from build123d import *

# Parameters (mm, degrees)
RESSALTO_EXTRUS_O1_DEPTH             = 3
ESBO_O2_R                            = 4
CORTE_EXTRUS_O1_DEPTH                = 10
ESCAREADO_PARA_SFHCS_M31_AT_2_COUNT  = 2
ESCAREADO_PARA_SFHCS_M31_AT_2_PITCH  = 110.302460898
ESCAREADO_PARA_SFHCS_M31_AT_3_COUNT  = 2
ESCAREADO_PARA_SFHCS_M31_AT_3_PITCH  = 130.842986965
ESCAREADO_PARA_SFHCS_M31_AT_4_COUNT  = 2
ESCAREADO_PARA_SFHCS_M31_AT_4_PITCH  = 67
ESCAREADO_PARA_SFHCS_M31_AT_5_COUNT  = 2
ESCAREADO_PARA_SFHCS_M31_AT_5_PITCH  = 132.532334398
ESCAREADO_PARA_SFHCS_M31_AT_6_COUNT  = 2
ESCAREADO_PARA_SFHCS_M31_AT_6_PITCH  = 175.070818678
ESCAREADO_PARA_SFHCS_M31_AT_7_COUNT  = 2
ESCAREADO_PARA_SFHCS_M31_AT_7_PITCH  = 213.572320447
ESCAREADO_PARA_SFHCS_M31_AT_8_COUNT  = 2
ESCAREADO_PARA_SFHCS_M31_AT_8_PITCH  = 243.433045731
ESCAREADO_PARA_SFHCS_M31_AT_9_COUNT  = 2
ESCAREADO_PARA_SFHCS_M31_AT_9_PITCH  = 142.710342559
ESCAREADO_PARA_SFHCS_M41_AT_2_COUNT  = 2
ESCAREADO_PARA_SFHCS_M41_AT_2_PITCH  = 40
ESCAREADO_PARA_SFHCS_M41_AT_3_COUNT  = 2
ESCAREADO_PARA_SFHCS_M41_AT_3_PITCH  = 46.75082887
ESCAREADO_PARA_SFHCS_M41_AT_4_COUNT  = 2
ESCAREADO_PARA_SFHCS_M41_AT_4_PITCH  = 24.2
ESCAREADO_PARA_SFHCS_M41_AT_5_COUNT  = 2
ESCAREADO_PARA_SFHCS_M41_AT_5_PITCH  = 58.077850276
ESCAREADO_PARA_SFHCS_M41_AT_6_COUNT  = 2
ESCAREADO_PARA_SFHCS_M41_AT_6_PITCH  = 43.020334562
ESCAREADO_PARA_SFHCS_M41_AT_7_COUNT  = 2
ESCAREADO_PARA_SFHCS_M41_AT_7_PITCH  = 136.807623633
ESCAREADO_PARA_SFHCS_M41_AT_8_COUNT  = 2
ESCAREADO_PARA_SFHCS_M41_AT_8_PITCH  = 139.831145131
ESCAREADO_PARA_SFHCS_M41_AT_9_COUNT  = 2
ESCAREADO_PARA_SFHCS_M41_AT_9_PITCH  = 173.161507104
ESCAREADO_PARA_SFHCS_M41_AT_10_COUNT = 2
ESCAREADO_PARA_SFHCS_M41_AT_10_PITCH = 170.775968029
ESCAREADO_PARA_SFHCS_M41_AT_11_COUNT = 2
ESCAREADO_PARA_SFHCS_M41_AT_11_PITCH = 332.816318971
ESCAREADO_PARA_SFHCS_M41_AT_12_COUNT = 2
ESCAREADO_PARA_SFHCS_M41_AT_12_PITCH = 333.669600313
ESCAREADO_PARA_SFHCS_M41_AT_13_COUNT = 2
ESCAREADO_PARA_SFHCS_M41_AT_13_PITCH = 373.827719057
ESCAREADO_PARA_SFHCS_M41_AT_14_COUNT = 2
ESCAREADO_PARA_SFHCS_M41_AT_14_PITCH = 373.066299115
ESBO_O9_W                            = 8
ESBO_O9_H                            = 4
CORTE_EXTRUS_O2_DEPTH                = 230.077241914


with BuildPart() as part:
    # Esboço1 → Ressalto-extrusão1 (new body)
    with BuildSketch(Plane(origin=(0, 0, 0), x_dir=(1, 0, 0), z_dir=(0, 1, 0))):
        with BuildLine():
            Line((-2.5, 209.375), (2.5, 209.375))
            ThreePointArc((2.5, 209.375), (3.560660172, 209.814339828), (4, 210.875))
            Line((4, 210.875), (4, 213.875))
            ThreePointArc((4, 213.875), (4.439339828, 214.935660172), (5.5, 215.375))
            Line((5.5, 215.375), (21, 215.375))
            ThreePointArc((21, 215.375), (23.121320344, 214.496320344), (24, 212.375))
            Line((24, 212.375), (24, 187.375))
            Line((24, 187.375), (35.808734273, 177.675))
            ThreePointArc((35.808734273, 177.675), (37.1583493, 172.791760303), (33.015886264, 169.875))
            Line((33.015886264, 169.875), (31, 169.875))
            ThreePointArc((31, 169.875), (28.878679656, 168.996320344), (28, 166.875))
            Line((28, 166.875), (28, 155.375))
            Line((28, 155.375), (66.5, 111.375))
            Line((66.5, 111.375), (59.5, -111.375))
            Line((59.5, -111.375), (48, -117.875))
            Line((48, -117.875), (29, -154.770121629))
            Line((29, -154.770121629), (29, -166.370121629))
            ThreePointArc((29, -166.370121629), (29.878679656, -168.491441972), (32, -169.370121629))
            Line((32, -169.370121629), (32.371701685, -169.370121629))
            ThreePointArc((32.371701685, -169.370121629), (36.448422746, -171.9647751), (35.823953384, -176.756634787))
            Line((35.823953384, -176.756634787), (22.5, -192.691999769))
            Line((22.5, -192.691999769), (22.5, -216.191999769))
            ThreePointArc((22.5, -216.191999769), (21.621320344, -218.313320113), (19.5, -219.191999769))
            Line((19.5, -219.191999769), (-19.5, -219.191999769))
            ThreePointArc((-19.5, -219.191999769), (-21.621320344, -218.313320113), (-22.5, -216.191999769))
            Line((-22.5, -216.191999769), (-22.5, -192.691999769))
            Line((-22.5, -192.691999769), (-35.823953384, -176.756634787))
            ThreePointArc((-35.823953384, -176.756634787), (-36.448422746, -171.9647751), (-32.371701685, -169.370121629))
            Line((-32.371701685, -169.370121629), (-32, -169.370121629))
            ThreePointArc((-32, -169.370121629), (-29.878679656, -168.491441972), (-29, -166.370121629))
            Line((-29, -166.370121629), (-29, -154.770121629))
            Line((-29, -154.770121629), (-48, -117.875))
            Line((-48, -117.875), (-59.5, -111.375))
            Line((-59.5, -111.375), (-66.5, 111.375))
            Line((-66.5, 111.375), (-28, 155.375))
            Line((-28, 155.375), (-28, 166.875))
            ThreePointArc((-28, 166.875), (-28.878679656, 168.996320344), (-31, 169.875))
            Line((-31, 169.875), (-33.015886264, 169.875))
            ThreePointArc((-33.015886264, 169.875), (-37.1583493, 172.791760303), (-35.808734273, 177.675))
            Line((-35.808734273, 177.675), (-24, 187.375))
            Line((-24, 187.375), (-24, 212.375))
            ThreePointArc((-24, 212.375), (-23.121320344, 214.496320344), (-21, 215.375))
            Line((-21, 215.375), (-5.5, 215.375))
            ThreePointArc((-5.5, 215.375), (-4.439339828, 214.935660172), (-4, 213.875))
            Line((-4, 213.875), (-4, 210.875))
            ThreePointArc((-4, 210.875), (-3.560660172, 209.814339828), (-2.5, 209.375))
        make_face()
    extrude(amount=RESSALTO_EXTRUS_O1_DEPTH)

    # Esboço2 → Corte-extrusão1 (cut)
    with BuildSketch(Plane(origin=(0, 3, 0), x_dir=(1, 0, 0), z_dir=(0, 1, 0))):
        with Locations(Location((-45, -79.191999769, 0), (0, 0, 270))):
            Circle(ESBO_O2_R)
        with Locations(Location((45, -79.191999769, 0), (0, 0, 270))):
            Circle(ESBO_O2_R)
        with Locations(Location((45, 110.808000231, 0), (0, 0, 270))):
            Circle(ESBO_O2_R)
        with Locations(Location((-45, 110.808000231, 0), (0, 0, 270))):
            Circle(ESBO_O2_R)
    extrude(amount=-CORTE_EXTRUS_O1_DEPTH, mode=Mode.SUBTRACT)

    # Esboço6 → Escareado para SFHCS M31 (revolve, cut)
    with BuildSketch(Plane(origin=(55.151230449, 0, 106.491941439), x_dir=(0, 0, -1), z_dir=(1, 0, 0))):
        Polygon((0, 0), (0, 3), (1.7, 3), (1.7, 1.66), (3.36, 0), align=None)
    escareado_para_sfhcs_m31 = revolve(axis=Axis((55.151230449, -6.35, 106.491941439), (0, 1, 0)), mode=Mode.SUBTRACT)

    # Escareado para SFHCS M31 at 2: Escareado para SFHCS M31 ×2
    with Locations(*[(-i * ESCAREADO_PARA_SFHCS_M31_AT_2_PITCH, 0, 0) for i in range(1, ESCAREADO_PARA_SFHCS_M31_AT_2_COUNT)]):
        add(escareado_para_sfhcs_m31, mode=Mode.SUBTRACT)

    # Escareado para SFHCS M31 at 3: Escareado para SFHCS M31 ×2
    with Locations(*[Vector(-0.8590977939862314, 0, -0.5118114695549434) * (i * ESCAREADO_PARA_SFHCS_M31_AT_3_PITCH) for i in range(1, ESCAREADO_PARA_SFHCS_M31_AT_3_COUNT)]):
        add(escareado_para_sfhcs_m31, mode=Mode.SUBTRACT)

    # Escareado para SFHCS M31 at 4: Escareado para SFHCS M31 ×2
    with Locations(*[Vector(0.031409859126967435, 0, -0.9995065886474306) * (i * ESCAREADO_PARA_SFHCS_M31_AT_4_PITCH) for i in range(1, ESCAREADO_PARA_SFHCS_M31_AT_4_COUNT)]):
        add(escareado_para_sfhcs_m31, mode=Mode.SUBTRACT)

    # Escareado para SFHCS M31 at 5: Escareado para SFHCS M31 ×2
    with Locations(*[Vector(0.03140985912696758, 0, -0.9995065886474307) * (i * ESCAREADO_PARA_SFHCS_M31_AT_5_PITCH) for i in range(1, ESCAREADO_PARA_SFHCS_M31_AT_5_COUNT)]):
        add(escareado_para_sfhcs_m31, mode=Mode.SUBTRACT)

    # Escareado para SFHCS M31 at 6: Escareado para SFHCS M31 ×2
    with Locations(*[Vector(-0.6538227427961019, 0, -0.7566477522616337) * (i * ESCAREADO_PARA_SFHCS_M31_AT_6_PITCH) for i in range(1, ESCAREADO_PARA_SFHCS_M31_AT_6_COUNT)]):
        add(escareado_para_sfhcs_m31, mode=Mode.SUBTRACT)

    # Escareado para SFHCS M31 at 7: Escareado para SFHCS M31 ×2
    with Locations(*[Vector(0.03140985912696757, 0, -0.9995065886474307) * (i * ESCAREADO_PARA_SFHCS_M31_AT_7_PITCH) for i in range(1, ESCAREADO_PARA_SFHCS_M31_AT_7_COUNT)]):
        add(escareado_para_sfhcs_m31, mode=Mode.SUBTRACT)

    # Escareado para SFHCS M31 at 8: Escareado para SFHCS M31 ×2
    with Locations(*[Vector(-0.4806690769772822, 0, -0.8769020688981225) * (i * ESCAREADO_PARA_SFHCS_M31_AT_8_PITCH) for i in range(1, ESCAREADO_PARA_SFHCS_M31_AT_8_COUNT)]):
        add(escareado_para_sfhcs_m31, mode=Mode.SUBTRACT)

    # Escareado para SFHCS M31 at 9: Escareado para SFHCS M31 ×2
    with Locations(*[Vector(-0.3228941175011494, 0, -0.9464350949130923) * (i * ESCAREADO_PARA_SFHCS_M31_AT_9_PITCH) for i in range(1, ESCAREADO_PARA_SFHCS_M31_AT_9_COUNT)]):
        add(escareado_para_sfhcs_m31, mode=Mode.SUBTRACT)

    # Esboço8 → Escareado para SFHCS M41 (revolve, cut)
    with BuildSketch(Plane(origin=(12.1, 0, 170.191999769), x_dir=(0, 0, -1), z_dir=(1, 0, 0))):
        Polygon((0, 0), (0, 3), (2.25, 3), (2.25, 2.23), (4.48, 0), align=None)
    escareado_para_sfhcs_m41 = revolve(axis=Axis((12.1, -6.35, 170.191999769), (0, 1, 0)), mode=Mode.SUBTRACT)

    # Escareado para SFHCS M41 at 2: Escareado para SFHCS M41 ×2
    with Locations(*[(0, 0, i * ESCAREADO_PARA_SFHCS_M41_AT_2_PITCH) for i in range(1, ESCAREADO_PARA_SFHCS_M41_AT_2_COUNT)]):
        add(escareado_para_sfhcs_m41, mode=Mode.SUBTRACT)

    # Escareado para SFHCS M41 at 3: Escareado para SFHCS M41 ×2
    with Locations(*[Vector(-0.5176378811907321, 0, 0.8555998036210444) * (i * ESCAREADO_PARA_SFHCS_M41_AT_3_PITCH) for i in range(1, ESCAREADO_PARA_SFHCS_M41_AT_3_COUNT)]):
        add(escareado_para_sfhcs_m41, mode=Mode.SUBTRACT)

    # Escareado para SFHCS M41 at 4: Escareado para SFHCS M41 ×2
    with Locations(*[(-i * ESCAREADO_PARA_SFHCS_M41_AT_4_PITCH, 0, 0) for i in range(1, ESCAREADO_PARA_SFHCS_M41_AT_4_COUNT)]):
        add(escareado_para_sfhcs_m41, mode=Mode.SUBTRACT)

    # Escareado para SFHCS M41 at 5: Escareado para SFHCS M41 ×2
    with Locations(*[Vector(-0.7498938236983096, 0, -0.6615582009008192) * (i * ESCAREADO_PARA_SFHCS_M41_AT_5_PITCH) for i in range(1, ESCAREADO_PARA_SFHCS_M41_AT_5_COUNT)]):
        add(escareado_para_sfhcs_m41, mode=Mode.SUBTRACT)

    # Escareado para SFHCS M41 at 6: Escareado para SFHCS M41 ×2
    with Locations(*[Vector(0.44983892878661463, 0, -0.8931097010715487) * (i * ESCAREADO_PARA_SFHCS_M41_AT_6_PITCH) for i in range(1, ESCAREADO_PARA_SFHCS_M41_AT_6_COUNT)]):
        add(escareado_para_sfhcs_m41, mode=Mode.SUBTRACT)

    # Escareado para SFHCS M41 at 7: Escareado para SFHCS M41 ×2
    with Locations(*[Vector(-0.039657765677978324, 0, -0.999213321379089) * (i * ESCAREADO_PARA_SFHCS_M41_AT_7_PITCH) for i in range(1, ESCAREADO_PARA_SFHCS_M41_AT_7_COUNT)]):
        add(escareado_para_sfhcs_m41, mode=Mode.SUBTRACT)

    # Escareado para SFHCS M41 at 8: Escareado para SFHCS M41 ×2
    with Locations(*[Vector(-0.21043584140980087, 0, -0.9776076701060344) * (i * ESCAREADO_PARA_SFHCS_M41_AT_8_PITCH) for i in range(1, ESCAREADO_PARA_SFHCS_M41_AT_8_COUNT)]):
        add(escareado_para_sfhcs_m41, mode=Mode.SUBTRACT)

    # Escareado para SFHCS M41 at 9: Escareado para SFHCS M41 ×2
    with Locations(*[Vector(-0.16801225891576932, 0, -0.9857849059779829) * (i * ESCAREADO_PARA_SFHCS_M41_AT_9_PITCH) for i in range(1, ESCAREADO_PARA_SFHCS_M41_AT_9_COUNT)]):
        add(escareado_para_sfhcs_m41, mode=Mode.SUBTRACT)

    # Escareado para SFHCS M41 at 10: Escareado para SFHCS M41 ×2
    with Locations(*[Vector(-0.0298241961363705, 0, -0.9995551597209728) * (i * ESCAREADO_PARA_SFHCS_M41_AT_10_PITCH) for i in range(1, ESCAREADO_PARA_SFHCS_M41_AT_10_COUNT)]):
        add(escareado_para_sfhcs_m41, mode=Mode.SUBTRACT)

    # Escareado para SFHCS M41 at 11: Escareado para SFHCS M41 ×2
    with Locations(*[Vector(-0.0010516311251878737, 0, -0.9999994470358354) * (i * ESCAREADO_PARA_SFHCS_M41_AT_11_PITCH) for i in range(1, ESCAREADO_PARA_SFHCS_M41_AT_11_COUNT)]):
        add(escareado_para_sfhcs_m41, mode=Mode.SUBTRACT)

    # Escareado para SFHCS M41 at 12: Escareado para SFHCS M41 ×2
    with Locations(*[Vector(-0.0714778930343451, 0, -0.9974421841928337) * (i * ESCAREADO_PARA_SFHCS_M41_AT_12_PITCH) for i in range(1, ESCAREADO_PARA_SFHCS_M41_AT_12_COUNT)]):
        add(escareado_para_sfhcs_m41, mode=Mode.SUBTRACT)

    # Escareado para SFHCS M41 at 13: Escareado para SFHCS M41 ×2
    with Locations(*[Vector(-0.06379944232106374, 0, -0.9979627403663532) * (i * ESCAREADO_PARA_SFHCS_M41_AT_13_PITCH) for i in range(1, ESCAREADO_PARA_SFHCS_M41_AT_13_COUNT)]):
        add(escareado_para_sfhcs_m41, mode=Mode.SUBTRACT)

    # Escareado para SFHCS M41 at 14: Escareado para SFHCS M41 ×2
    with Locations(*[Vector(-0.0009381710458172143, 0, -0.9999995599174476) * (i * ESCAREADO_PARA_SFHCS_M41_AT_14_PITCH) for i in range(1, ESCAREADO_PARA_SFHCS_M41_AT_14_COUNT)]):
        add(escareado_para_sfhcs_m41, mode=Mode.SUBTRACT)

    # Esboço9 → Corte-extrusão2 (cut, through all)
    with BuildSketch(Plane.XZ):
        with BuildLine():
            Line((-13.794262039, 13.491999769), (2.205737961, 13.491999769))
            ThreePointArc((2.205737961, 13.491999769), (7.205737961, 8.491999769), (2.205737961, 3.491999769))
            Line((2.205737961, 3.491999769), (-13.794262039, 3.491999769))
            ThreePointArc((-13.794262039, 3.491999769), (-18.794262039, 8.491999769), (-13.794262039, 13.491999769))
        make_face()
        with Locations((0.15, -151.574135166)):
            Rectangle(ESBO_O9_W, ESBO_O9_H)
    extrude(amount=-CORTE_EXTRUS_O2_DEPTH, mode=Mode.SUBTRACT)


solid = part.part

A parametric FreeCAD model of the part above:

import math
import FreeCAD as App
import Part
import Sketcher

V = App.Vector
Q = App.Units.Quantity

doc = App.newDocument("Part")
body = doc.addObject("PartDesign::Body", "Body")

sketch1 = doc.addObject("Sketcher::SketchObject", "Sketch")
body.addObject(sketch1)
sketch1.AttachmentSupport = (doc.XZ_Plane, [""])
sketch1.MapMode = "FlatFace"
sketch1.addGeometry([
    Part.LineSegment(V(2.5, -209.38, 0), V(-2.5, -209.38, 0)),
    Part.ArcOfCircle(Part.Circle(V(-2.5, -210.87, 0), V(0, 0, 1), 1.5), math.radians(90), math.radians(180)),
    Part.LineSegment(V(-4, -210.88, 0), V(-4, -213.88, 0)),
    Part.ArcOfCircle(Part.Circle(V(-5.5, -213.88, 0), V(0, 0, 1), 1.5), math.radians(-90), math.radians(0)),
    Part.LineSegment(V(-5.5, -215.38, 0), V(-21, -215.38, 0)),
    Part.ArcOfCircle(Part.Circle(V(-21, -212.38, 0), V(0, 0, 1), 3), math.radians(180), math.radians(270)),
    Part.LineSegment(V(-24, -212.38, 0), V(-24, -187.38, 0)),
    Part.LineSegment(V(-24, -187.38, 0), V(-35.81, -177.68, 0)),
    Part.ArcOfCircle(Part.Circle(V(-33.02, -174.28, 0), V(0, 0, 1), 4.4), math.radians(90), math.radians(231)),
    Part.LineSegment(V(-33.02, -169.88, 0), V(-31, -169.88, 0)),
    Part.ArcOfCircle(Part.Circle(V(-31, -166.88, 0), V(0, 0, 1), 3), math.radians(-90), math.radians(0)),
    Part.LineSegment(V(-28, -166.88, 0), V(-28, -155.38, 0)),
    Part.LineSegment(V(-28, -155.38, 0), V(-66.5, -111.38, 0)),
    Part.LineSegment(V(-66.5, -111.38, 0), V(-59.5, 111.38, 0)),
    Part.LineSegment(V(-59.5, 111.38, 0), V(-48, 117.88, 0)),
    Part.LineSegment(V(-48, 117.88, 0), V(-29, 154.77, 0)),
    Part.LineSegment(V(-29, 154.77, 0), V(-29, 166.37, 0)),
    Part.ArcOfCircle(Part.Circle(V(-32, 166.37, 0), V(0, 0, 1), 3), math.radians(0), math.radians(90)),
    Part.LineSegment(V(-32, 169.37, 0), V(-32.37, 169.37, 0)),
    Part.ArcOfCircle(Part.Circle(V(-32.37, 173.87, 0), V(0, 0, 1), 4.5), math.radians(140), math.radians(270)),
    Part.LineSegment(V(-35.82, 176.76, 0), V(-22.5, 192.69, 0)),
    Part.LineSegment(V(-22.5, 192.69, 0), V(-22.5, 216.19, 0)),
    Part.ArcOfCircle(Part.Circle(V(-19.5, 216.19, 0), V(0, 0, 1), 3), math.radians(90), math.radians(180)),
    Part.LineSegment(V(-19.5, 219.19, 0), V(19.5, 219.19, 0)),
    Part.ArcOfCircle(Part.Circle(V(19.5, 216.19, 0), V(0, 0, 1), 3), math.radians(0), math.radians(90)),
    Part.LineSegment(V(22.5, 216.19, 0), V(22.5, 192.69, 0)),
    Part.LineSegment(V(22.5, 192.69, 0), V(35.82, 176.76, 0)),
    Part.ArcOfCircle(Part.Circle(V(32.37, 173.87, 0), V(0, 0, 1), 4.5), math.radians(-90), math.radians(40)),
    Part.LineSegment(V(32.37, 169.37, 0), V(32, 169.37, 0)),
    Part.ArcOfCircle(Part.Circle(V(32, 166.37, 0), V(0, 0, 1), 3), math.radians(90), math.radians(180)),
    Part.LineSegment(V(29, 166.37, 0), V(29, 154.77, 0)),
    Part.LineSegment(V(29, 154.77, 0), V(48, 117.88, 0)),
    Part.LineSegment(V(48, 117.88, 0), V(59.5, 111.38, 0)),
    Part.LineSegment(V(59.5, 111.38, 0), V(66.5, -111.38, 0)),
    Part.LineSegment(V(66.5, -111.38, 0), V(28, -155.38, 0)),
    Part.LineSegment(V(28, -155.38, 0), V(28, -166.88, 0)),
    Part.ArcOfCircle(Part.Circle(V(31, -166.88, 0), V(0, 0, 1), 3), math.radians(180), math.radians(270)),
    Part.LineSegment(V(31, -169.88, 0), V(33.02, -169.88, 0)),
    Part.ArcOfCircle(Part.Circle(V(33.02, -174.28, 0), V(0, 0, 1), 4.4), math.radians(-51), math.radians(90)),
    Part.LineSegment(V(35.81, -177.68, 0), V(24, -187.38, 0)),
    Part.LineSegment(V(24, -187.38, 0), V(24, -212.38, 0)),
    Part.ArcOfCircle(Part.Circle(V(21, -212.38, 0), V(0, 0, 1), 3), math.radians(-90), math.radians(0)),
    Part.LineSegment(V(21, -215.38, 0), V(5.5, -215.38, 0)),
    Part.ArcOfCircle(Part.Circle(V(5.5, -213.88, 0), V(0, 0, 1), 1.5), math.radians(180), math.radians(270)),
    Part.LineSegment(V(4, -213.88, 0), V(4, -210.88, 0)),
    Part.ArcOfCircle(Part.Circle(V(2.5, -210.87, 0), V(0, 0, 1), 1.5), math.radians(0), math.radians(90)),
], False)
sketch1.addConstraint([
    Sketcher.Constraint("Tangent", 0, 2, 1, 1),
    Sketcher.Constraint("Tangent", 1, 2, 2, 1),
    Sketcher.Constraint("Tangent", 2, 2, 3, 2),
    Sketcher.Constraint("Tangent", 3, 1, 4, 1),
    Sketcher.Constraint("Tangent", 4, 2, 5, 2),
    Sketcher.Constraint("Tangent", 5, 1, 6, 1),
    Sketcher.Constraint("Coincident", 6, 2, 7, 1),
    Sketcher.Constraint("Tangent", 7, 2, 8, 2),
    Sketcher.Constraint("Tangent", 8, 1, 9, 1),
    Sketcher.Constraint("Tangent", 9, 2, 10, 1),
    Sketcher.Constraint("Tangent", 10, 2, 11, 1),
    Sketcher.Constraint("Coincident", 11, 2, 12, 1),
    Sketcher.Constraint("Coincident", 12, 2, 13, 1),
    Sketcher.Constraint("Coincident", 13, 2, 14, 1),
    Sketcher.Constraint("Coincident", 14, 2, 15, 1),
    Sketcher.Constraint("Coincident", 15, 2, 16, 1),
    Sketcher.Constraint("Tangent", 16, 2, 17, 1),
    Sketcher.Constraint("Tangent", 17, 2, 18, 1),
    Sketcher.Constraint("Tangent", 18, 2, 19, 2),
    Sketcher.Constraint("Tangent", 19, 1, 20, 1),
    Sketcher.Constraint("Coincident", 20, 2, 21, 1),
    Sketcher.Constraint("Tangent", 21, 2, 22, 2),
    Sketcher.Constraint("Tangent", 22, 1, 23, 1),
    Sketcher.Constraint("Tangent", 23, 2, 24, 2),
    Sketcher.Constraint("Tangent", 24, 1, 25, 1),
    Sketcher.Constraint("Coincident", 25, 2, 26, 1),
    Sketcher.Constraint("Tangent", 26, 2, 27, 2),
    Sketcher.Constraint("Tangent", 27, 1, 28, 1),
    Sketcher.Constraint("Tangent", 28, 2, 29, 1),
    Sketcher.Constraint("Tangent", 29, 2, 30, 1),
    Sketcher.Constraint("Coincident", 30, 2, 31, 1),
    Sketcher.Constraint("Coincident", 31, 2, 32, 1),
    Sketcher.Constraint("Coincident", 32, 2, 33, 1),
    Sketcher.Constraint("Coincident", 33, 2, 34, 1),
    Sketcher.Constraint("Coincident", 34, 2, 35, 1),
    Sketcher.Constraint("Tangent", 35, 2, 36, 1),
    Sketcher.Constraint("Tangent", 36, 2, 37, 1),
    Sketcher.Constraint("Tangent", 37, 2, 38, 2),
    Sketcher.Constraint("Tangent", 38, 1, 39, 1),
    Sketcher.Constraint("Coincident", 39, 2, 40, 1),
    Sketcher.Constraint("Tangent", 40, 2, 41, 2),
    Sketcher.Constraint("Tangent", 41, 1, 42, 1),
    Sketcher.Constraint("Tangent", 42, 2, 43, 2),
    Sketcher.Constraint("Tangent", 43, 1, 44, 1),
    Sketcher.Constraint("Tangent", 44, 2, 45, 1),
    Sketcher.Constraint("Tangent", 45, 2, 0, 1),
    Sketcher.Constraint("Horizontal", 0),
    Sketcher.Constraint("Vertical", 2),
    Sketcher.Constraint("Horizontal", 4),
    Sketcher.Constraint("Vertical", 6),
    Sketcher.Constraint("Horizontal", 9),
    Sketcher.Constraint("Vertical", 11),
    Sketcher.Constraint("Vertical", 16),
    Sketcher.Constraint("Horizontal", 18),
    Sketcher.Constraint("Vertical", 21),
    Sketcher.Constraint("Horizontal", 23),
    Sketcher.Constraint("Vertical", 25),
    Sketcher.Constraint("Horizontal", 28),
    Sketcher.Constraint("Vertical", 30),
    Sketcher.Constraint("Vertical", 35),
    Sketcher.Constraint("Horizontal", 37),
    Sketcher.Constraint("Vertical", 40),
    Sketcher.Constraint("Horizontal", 42),
    Sketcher.Constraint("Vertical", 44),
    Sketcher.Constraint("Equal", 1, 3),
    Sketcher.Constraint("Equal", 5, 10),
    Sketcher.Constraint("Equal", 10, 17),
    Sketcher.Constraint("Equal", 17, 22),
    Sketcher.Constraint("Equal", 22, 24),
    Sketcher.Constraint("Equal", 19, 27),
    Sketcher.Constraint("Equal", 24, 29),
    Sketcher.Constraint("Equal", 29, 36),
    Sketcher.Constraint("Equal", 8, 38),
    Sketcher.Constraint("Equal", 36, 41),
    Sketcher.Constraint("Equal", 3, 43),
    Sketcher.Constraint("Equal", 43, 45),
    Sketcher.Constraint("Symmetric", 19, 3, 27, 3, -2),
    Sketcher.Constraint("Symmetric", 10, 3, 36, 3, -2),
    Sketcher.Constraint("Symmetric", 5, 3, 41, 3, -2),
    Sketcher.Constraint("Symmetric", 20, 2, 25, 2, -2),
    Sketcher.Constraint("Symmetric", 15, 2, 30, 2, -2),
    Sketcher.Constraint("Symmetric", 14, 2, 31, 2, -2),
    Sketcher.Constraint("Symmetric", 13, 2, 32, 2, -2),
    Sketcher.Constraint("Symmetric", 12, 2, 33, 2, -2),
    Sketcher.Constraint("Symmetric", 7, 2, 38, 1, -2),
    Sketcher.Constraint("Horizontal", 11, 2, 34, 2),
    Sketcher.Constraint("Equal", 4, 42),
    Sketcher.Constraint("Radius", 5, 3.0),
    Sketcher.Constraint("Radius", 1, 1.5),
    Sketcher.Constraint("Radius", 8, 4.4),
    Sketcher.Constraint("Radius", 19, 4.5),
    Sketcher.Constraint("DistanceX", 0, 2, 0, 1, 5.0),
    Sketcher.Constraint("DistanceX", 23, 1, 23, 2, 39.0),
    Sketcher.Constraint("DistanceY", 2, 2, 2, 1, 3.0),
    Sketcher.Constraint("DistanceY", 6, 1, 6, 2, 25.0),
    Sketcher.Constraint("DistanceX", 4, 2, 4, 1, 15.5),
    Sketcher.Constraint("DistanceY", 11, 1, 11, 2, 11.5),
    Sketcher.Constraint("DistanceY", 16, 1, 16, 2, 11.6),
    Sketcher.Constraint("DistanceY", 21, 1, 21, 2, 23.5),
    Sketcher.Constraint("DistanceX", 10, 3, -1, 1, 31.0),
    Sketcher.Constraint("DistanceX", 17, 3, -1, 1, 32.0),
    Sketcher.Constraint("DistanceX", 14, 2, -1, 1, 48.0),
    Sketcher.Constraint("Distance", 15, 41.5),
    Sketcher.Constraint("DistanceX", 12, 2, -1, 1, 66.5),
    Sketcher.Constraint("DistanceX", 13, 2, -1, 1, 59.5),
    Sketcher.Constraint("DistanceX", 18, 2, 18, 1, 0.371702),
    Sketcher.Constraint("DistanceY", 1, 3, -1, 1, 210.875),
    Sketcher.Constraint("DistanceY", 8, 3, -1, 1, 174.275),
    Sketcher.Constraint("DistanceY", -1, 1, 22, 3, 216.192),
    Sketcher.Constraint("DistanceY", 7, 2, -1, 1, 177.675),
    Sketcher.Constraint("DistanceY", 12, 2, -1, 1, 111.375),
    Sketcher.Constraint("DistanceY", -1, 1, 13, 2, 111.375),
    Sketcher.Constraint("DistanceY", -1, 1, 14, 2, 117.875),
])
pad1 = doc.addObject("PartDesign::Pad", "Pad")
body.addObject(pad1)
pad1.Profile = sketch1
pad1.Length = 3
pad1.Reversed = True

sketch2 = doc.addObject("Sketcher::SketchObject", "Sketch001")
body.addObject(sketch2)
sketch2.AttachmentSupport = (doc.XZ_Plane, [""])
sketch2.MapMode = "FlatFace"
sketch2.AttachmentOffset = App.Placement(V(0, 0, -3), App.Rotation())
sketch2.addGeometry([
    Part.Circle(V(-45, 79.2, 0), V(0, 0, 1), 4),
    Part.Circle(V(45, 79.2, 0), V(0, 0, 1), 4),
    Part.Circle(V(45, -110.8, 0), V(0, 0, 1), 4),
    Part.Circle(V(-45, -110.8, 0), V(0, 0, 1), 4),
], False)
sketch2.addConstraint([
    Sketcher.Constraint("Equal", 0, 1),
    Sketcher.Constraint("Equal", 1, 2),
    Sketcher.Constraint("Equal", 2, 3),
    Sketcher.Constraint("Symmetric", 0, 3, 1, 3, -2),
    Sketcher.Constraint("Symmetric", 2, 3, 3, 3, -2),
    Sketcher.Constraint("Vertical", 1, 3, 2, 3),
    Sketcher.Constraint("Diameter", 0, 8.0),
    Sketcher.Constraint("DistanceX", 0, 3, -1, 1, 45.0),
    Sketcher.Constraint("DistanceY", 2, 3, 1, 3, 190.0),
    Sketcher.Constraint("DistanceY", -1, 1, 0, 3, 79.192),
])
pocket1 = doc.addObject("PartDesign::Pocket", "Pocket")
body.addObject(pocket1)
pocket1.Profile = sketch2
pocket1.Length = 10
pocket1.Reversed = True

sketch3 = doc.addObject("Sketcher::SketchObject", "Sketch002")
body.addObject(sketch3)
sketch3.AttachmentSupport = (doc.YZ_Plane, [""])
sketch3.MapMode = "FlatFace"
sketch3.AttachmentOffset = App.Placement(V(0, 0, 55.15123), App.Rotation())
sketch3.addGeometry([
    Part.LineSegment(V(3, 106.5, 0), V(0, 106.5, 0)),
    Part.LineSegment(V(0, 106.5, 0), V(0, 103.1, 0)),
    Part.LineSegment(V(0, 103.1, 0), V(1.7, 104.8, 0)),
    Part.LineSegment(V(1.7, 104.8, 0), V(3, 104.8, 0)),
    Part.LineSegment(V(3, 104.8, 0), V(3, 106.5, 0)),
], False)
sketch3.addGeometry(Part.LineSegment(V(0, 106.5, 0), V(3, 106.5, 0)), True)
sketch3.addConstraint([
    Sketcher.Constraint("Coincident", 0, 2, 1, 1),
    Sketcher.Constraint("Coincident", 1, 2, 2, 1),
    Sketcher.Constraint("Coincident", 2, 2, 3, 1),
    Sketcher.Constraint("Coincident", 3, 2, 4, 1),
    Sketcher.Constraint("Coincident", 4, 2, 0, 1),
    Sketcher.Constraint("Horizontal", 0),
    Sketcher.Constraint("Vertical", 1),
    Sketcher.Constraint("Horizontal", 3),
    Sketcher.Constraint("Vertical", 4),
    Sketcher.Constraint("Horizontal", 5),
    Sketcher.Constraint("Coincident", 5, 1, 0, 2),
    Sketcher.Constraint("PointOnObject", 0, 2, -2),
    Sketcher.Constraint("Vertical", 3, 2, 5, 2),
    Sketcher.Constraint("DistanceX", 0, 2, 0, 1, 3.0),
    Sketcher.Constraint("Angle", 2, Q("45 deg")),
    Sketcher.Constraint("DistanceY", 4, 1, 4, 2, 1.7),
    Sketcher.Constraint("DistanceX", 3, 1, 3, 2, 1.34),
    Sketcher.Constraint("DistanceY", -1, 1, 0, 2, 106.491941),
])
groove = doc.addObject("PartDesign::Groove", "Groove")
body.addObject(groove)
groove.Profile = sketch3
groove.ReferenceAxis = (sketch3, ["Axis0"])
groove.Angle = 360
doc.recompute()

linearpattern = doc.addObject("PartDesign::LinearPattern", "LinearPattern")
body.addObject(linearpattern)
linearpattern.Originals = [groove]
linearpattern.Direction = (doc.X_Axis, [""])
linearpattern.Mode = "offset"
linearpattern.Offset = 110.302461
linearpattern.Occurrences = 2
linearpattern.Reversed = True
body.Tip = linearpattern
doc.recompute()

datumline = doc.addObject("PartDesign::Line", "DatumLine")
body.addObject(datumline)
datumline.Placement = App.Placement(V(0, 0, 0), App.Rotation(V(0, 0, 1), V(-0.859097794, 0, -0.51181147)))
linearpattern2 = doc.addObject("PartDesign::LinearPattern", "LinearPattern001")
body.addObject(linearpattern2)
linearpattern2.Originals = [groove]
linearpattern2.Direction = (datumline, [""])
linearpattern2.Mode = "offset"
linearpattern2.Offset = 130.842987
linearpattern2.Occurrences = 2
body.Tip = linearpattern2
doc.recompute()

datumline2 = doc.addObject("PartDesign::Line", "DatumLine001")
body.addObject(datumline2)
datumline2.Placement = App.Placement(V(0, 0, 0), App.Rotation(V(0, 0, 1), V(0.031409859, 0, -0.999506589)))
linearpattern3 = doc.addObject("PartDesign::LinearPattern", "LinearPattern002")
body.addObject(linearpattern3)
linearpattern3.Originals = [groove]
linearpattern3.Direction = (datumline2, [""])
linearpattern3.Mode = "offset"
linearpattern3.Offset = 67
linearpattern3.Occurrences = 2
body.Tip = linearpattern3
doc.recompute()

datumline3 = doc.addObject("PartDesign::Line", "DatumLine002")
body.addObject(datumline3)
datumline3.Placement = App.Placement(V(0, 0, 0), App.Rotation(V(0, 0, 1), V(0.031409859, 0, -0.999506589)))
linearpattern4 = doc.addObject("PartDesign::LinearPattern", "LinearPattern003")
body.addObject(linearpattern4)
linearpattern4.Originals = [groove]
linearpattern4.Direction = (datumline3, [""])
linearpattern4.Mode = "offset"
linearpattern4.Offset = 132.532334
linearpattern4.Occurrences = 2
body.Tip = linearpattern4
doc.recompute()

datumline4 = doc.addObject("PartDesign::Line", "DatumLine003")
body.addObject(datumline4)
datumline4.Placement = App.Placement(V(0, 0, 0), App.Rotation(V(0, 0, 1), V(-0.653822743, 0, -0.756647752)))
linearpattern5 = doc.addObject("PartDesign::LinearPattern", "LinearPattern004")
body.addObject(linearpattern5)
linearpattern5.Originals = [groove]
linearpattern5.Direction = (datumline4, [""])
linearpattern5.Mode = "offset"
linearpattern5.Offset = 175.070819
linearpattern5.Occurrences = 2
body.Tip = linearpattern5
doc.recompute()

datumline5 = doc.addObject("PartDesign::Line", "DatumLine004")
body.addObject(datumline5)
datumline5.Placement = App.Placement(V(0, 0, 0), App.Rotation(V(0, 0, 1), V(0.031409859, 0, -0.999506589)))
linearpattern6 = doc.addObject("PartDesign::LinearPattern", "LinearPattern005")
body.addObject(linearpattern6)
linearpattern6.Originals = [groove]
linearpattern6.Direction = (datumline5, [""])
linearpattern6.Mode = "offset"
linearpattern6.Offset = 213.57232
linearpattern6.Occurrences = 2
body.Tip = linearpattern6
doc.recompute()

datumline6 = doc.addObject("PartDesign::Line", "DatumLine005")
body.addObject(datumline6)
datumline6.Placement = App.Placement(V(0, 0, 0), App.Rotation(V(0, 0, 1), V(-0.480669077, 0, -0.876902069)))
linearpattern7 = doc.addObject("PartDesign::LinearPattern", "LinearPattern006")
body.addObject(linearpattern7)
linearpattern7.Originals = [groove]
linearpattern7.Direction = (datumline6, [""])
linearpattern7.Mode = "offset"
linearpattern7.Offset = 243.433046
linearpattern7.Occurrences = 2
body.Tip = linearpattern7
doc.recompute()

datumline7 = doc.addObject("PartDesign::Line", "DatumLine006")
body.addObject(datumline7)
datumline7.Placement = App.Placement(V(0, 0, 0), App.Rotation(V(0, 0, 1), V(-0.322894118, 0, -0.946435095)))
linearpattern8 = doc.addObject("PartDesign::LinearPattern", "LinearPattern007")
body.addObject(linearpattern8)
linearpattern8.Originals = [groove]
linearpattern8.Direction = (datumline7, [""])
linearpattern8.Mode = "offset"
linearpattern8.Offset = 142.710343
linearpattern8.Occurrences = 2
body.Tip = linearpattern8

sketch4 = doc.addObject("Sketcher::SketchObject", "Sketch003")
body.addObject(sketch4)
sketch4.AttachmentSupport = (doc.YZ_Plane, [""])
sketch4.MapMode = "FlatFace"
sketch4.AttachmentOffset = App.Placement(V(0, 0, 12.1), App.Rotation())
sketch4.addGeometry([
    Part.LineSegment(V(3, 170.2, 0), V(0, 170.2, 0)),
    Part.LineSegment(V(0, 170.2, 0), V(0, 165.7, 0)),
    Part.LineSegment(V(0, 165.7, 0), V(2.2, 167.9, 0)),
    Part.LineSegment(V(2.2, 167.9, 0), V(3, 167.9, 0)),
    Part.LineSegment(V(3, 167.9, 0), V(3, 170.2, 0)),
], False)
sketch4.addGeometry(Part.LineSegment(V(0, 170.2, 0), V(3, 170.2, 0)), True)
sketch4.addConstraint([
    Sketcher.Constraint("Coincident", 0, 2, 1, 1),
    Sketcher.Constraint("Coincident", 1, 2, 2, 1),
    Sketcher.Constraint("Coincident", 2, 2, 3, 1),
    Sketcher.Constraint("Coincident", 3, 2, 4, 1),
    Sketcher.Constraint("Coincident", 4, 2, 0, 1),
    Sketcher.Constraint("Horizontal", 0),
    Sketcher.Constraint("Vertical", 1),
    Sketcher.Constraint("Horizontal", 3),
    Sketcher.Constraint("Vertical", 4),
    Sketcher.Constraint("Horizontal", 5),
    Sketcher.Constraint("Coincident", 5, 1, 0, 2),
    Sketcher.Constraint("PointOnObject", 0, 2, -2),
    Sketcher.Constraint("Vertical", 3, 2, 5, 2),
    Sketcher.Constraint("DistanceX", 0, 2, 0, 1, 3.0),
    Sketcher.Constraint("Angle", 2, Q("45 deg")),
    Sketcher.Constraint("DistanceX", 3, 1, 3, 2, 0.77),
    Sketcher.Constraint("DistanceY", 1, 2, 1, 1, 4.48),
    Sketcher.Constraint("DistanceY", -1, 1, 0, 2, 170.192),
])
groove2 = doc.addObject("PartDesign::Groove", "Groove001")
body.addObject(groove2)
groove2.Profile = sketch4
groove2.ReferenceAxis = (sketch4, ["Axis0"])
groove2.Angle = 360
doc.recompute()

linearpattern9 = doc.addObject("PartDesign::LinearPattern", "LinearPattern008")
body.addObject(linearpattern9)
linearpattern9.Originals = [groove2]
linearpattern9.Direction = (doc.Z_Axis, [""])
linearpattern9.Mode = "offset"
linearpattern9.Offset = 40
linearpattern9.Occurrences = 2
body.Tip = linearpattern9
doc.recompute()

datumline8 = doc.addObject("PartDesign::Line", "DatumLine007")
body.addObject(datumline8)
datumline8.Placement = App.Placement(V(0, 0, 0), App.Rotation(V(0, 0, 1), V(-0.517637881, 0, 0.855599804)))
linearpattern10 = doc.addObject("PartDesign::LinearPattern", "LinearPattern009")
body.addObject(linearpattern10)
linearpattern10.Originals = [groove2]
linearpattern10.Direction = (datumline8, [""])
linearpattern10.Mode = "offset"
linearpattern10.Offset = 46.750829
linearpattern10.Occurrences = 2
body.Tip = linearpattern10
doc.recompute()

linearpattern11 = doc.addObject("PartDesign::LinearPattern", "LinearPattern010")
body.addObject(linearpattern11)
linearpattern11.Originals = [groove2]
linearpattern11.Direction = (doc.X_Axis, [""])
linearpattern11.Mode = "offset"
linearpattern11.Offset = 24.2
linearpattern11.Occurrences = 2
linearpattern11.Reversed = True
body.Tip = linearpattern11
doc.recompute()

datumline9 = doc.addObject("PartDesign::Line", "DatumLine008")
body.addObject(datumline9)
datumline9.Placement = App.Placement(V(0, 0, 0), App.Rotation(V(0, 0, 1), V(-0.749893824, 0, -0.661558201)))
linearpattern12 = doc.addObject("PartDesign::LinearPattern", "LinearPattern011")
body.addObject(linearpattern12)
linearpattern12.Originals = [groove2]
linearpattern12.Direction = (datumline9, [""])
linearpattern12.Mode = "offset"
linearpattern12.Offset = 58.07785
linearpattern12.Occurrences = 2
body.Tip = linearpattern12
doc.recompute()

datumline10 = doc.addObject("PartDesign::Line", "DatumLine009")
body.addObject(datumline10)
datumline10.Placement = App.Placement(V(0, 0, 0), App.Rotation(V(0, 0, 1), V(0.449838929, 0, -0.893109701)))
linearpattern13 = doc.addObject("PartDesign::LinearPattern", "LinearPattern012")
body.addObject(linearpattern13)
linearpattern13.Originals = [groove2]
linearpattern13.Direction = (datumline10, [""])
linearpattern13.Mode = "offset"
linearpattern13.Offset = 43.020335
linearpattern13.Occurrences = 2
body.Tip = linearpattern13
doc.recompute()

datumline11 = doc.addObject("PartDesign::Line", "DatumLine010")
body.addObject(datumline11)
datumline11.Placement = App.Placement(V(0, 0, 0), App.Rotation(V(0, 0, 1), V(-0.039657766, 0, -0.999213321)))
linearpattern14 = doc.addObject("PartDesign::LinearPattern", "LinearPattern013")
body.addObject(linearpattern14)
linearpattern14.Originals = [groove2]
linearpattern14.Direction = (datumline11, [""])
linearpattern14.Mode = "offset"
linearpattern14.Offset = 136.807624
linearpattern14.Occurrences = 2
body.Tip = linearpattern14
doc.recompute()

datumline12 = doc.addObject("PartDesign::Line", "DatumLine011")
body.addObject(datumline12)
datumline12.Placement = App.Placement(V(0, 0, 0), App.Rotation(V(0, 0, 1), V(-0.210435841, 0, -0.97760767)))
linearpattern15 = doc.addObject("PartDesign::LinearPattern", "LinearPattern014")
body.addObject(linearpattern15)
linearpattern15.Originals = [groove2]
linearpattern15.Direction = (datumline12, [""])
linearpattern15.Mode = "offset"
linearpattern15.Offset = 139.831145
linearpattern15.Occurrences = 2
body.Tip = linearpattern15
doc.recompute()

datumline13 = doc.addObject("PartDesign::Line", "DatumLine012")
body.addObject(datumline13)
datumline13.Placement = App.Placement(V(0, 0, 0), App.Rotation(V(0, 0, 1), V(-0.168012259, 0, -0.985784906)))
linearpattern16 = doc.addObject("PartDesign::LinearPattern", "LinearPattern015")
body.addObject(linearpattern16)
linearpattern16.Originals = [groove2]
linearpattern16.Direction = (datumline13, [""])
linearpattern16.Mode = "offset"
linearpattern16.Offset = 173.161507
linearpattern16.Occurrences = 2
body.Tip = linearpattern16
doc.recompute()

datumline14 = doc.addObject("PartDesign::Line", "DatumLine013")
body.addObject(datumline14)
datumline14.Placement = App.Placement(V(0, 0, 0), App.Rotation(V(0, 0, 1), V(-0.029824196, 0, -0.99955516)))
linearpattern17 = doc.addObject("PartDesign::LinearPattern", "LinearPattern016")
body.addObject(linearpattern17)
linearpattern17.Originals = [groove2]
linearpattern17.Direction = (datumline14, [""])
linearpattern17.Mode = "offset"
linearpattern17.Offset = 170.775968
linearpattern17.Occurrences = 2
body.Tip = linearpattern17
doc.recompute()

datumline15 = doc.addObject("PartDesign::Line", "DatumLine014")
body.addObject(datumline15)
datumline15.Placement = App.Placement(V(0, 0, 0), App.Rotation(V(0, 0, 1), V(-0.001051631, 0, -0.999999447)))
linearpattern18 = doc.addObject("PartDesign::LinearPattern", "LinearPattern017")
body.addObject(linearpattern18)
linearpattern18.Originals = [groove2]
linearpattern18.Direction = (datumline15, [""])
linearpattern18.Mode = "offset"
linearpattern18.Offset = 332.816319
linearpattern18.Occurrences = 2
body.Tip = linearpattern18
doc.recompute()

datumline16 = doc.addObject("PartDesign::Line", "DatumLine015")
body.addObject(datumline16)
datumline16.Placement = App.Placement(V(0, 0, 0), App.Rotation(V(0, 0, 1), V(-0.071477893, 0, -0.997442184)))
linearpattern19 = doc.addObject("PartDesign::LinearPattern", "LinearPattern018")
body.addObject(linearpattern19)
linearpattern19.Originals = [groove2]
linearpattern19.Direction = (datumline16, [""])
linearpattern19.Mode = "offset"
linearpattern19.Offset = 333.6696
linearpattern19.Occurrences = 2
body.Tip = linearpattern19
doc.recompute()

datumline17 = doc.addObject("PartDesign::Line", "DatumLine016")
body.addObject(datumline17)
datumline17.Placement = App.Placement(V(0, 0, 0), App.Rotation(V(0, 0, 1), V(-0.063799442, 0, -0.99796274)))
linearpattern20 = doc.addObject("PartDesign::LinearPattern", "LinearPattern019")
body.addObject(linearpattern20)
linearpattern20.Originals = [groove2]
linearpattern20.Direction = (datumline17, [""])
linearpattern20.Mode = "offset"
linearpattern20.Offset = 373.827719
linearpattern20.Occurrences = 2
body.Tip = linearpattern20
doc.recompute()

datumline18 = doc.addObject("PartDesign::Line", "DatumLine017")
body.addObject(datumline18)
datumline18.Placement = App.Placement(V(0, 0, 0), App.Rotation(V(0, 0, 1), V(-0.000938171, 0, -0.99999956)))
linearpattern21 = doc.addObject("PartDesign::LinearPattern", "LinearPattern020")
body.addObject(linearpattern21)
linearpattern21.Originals = [groove2]
linearpattern21.Direction = (datumline18, [""])
linearpattern21.Mode = "offset"
linearpattern21.Offset = 373.066299
linearpattern21.Occurrences = 2
body.Tip = linearpattern21

sketch5 = doc.addObject("Sketcher::SketchObject", "Sketch004")
body.addObject(sketch5)
sketch5.AttachmentSupport = (doc.XZ_Plane, [""])
sketch5.MapMode = "FlatFace"
sketch5.addGeometry([
    Part.LineSegment(V(2.2, 13.5, 0), V(-13.8, 13.5, 0)),
    Part.ArcOfCircle(Part.Circle(V(-13.8, 8.5, 0), V(0, 0, 1), 5), math.radians(90), math.radians(270)),
    Part.LineSegment(V(-13.8, 3.5, 0), V(2.2, 3.5, 0)),
    Part.ArcOfCircle(Part.Circle(V(2.2, 8.5, 0), V(0, 0, 1), 5), math.radians(-90), math.radians(90)),
    Part.LineSegment(V(-3.9, -149.6, 0), V(-3.9, -153.6, 0)),
    Part.LineSegment(V(-3.9, -153.6, 0), V(4.2, -153.6, 0)),
    Part.LineSegment(V(4.2, -153.6, 0), V(4.2, -149.6, 0)),
    Part.LineSegment(V(4.2, -149.6, 0), V(-3.9, -149.6, 0)),
], False)
sketch5.addConstraint([
    Sketcher.Constraint("Tangent", 0, 2, 1, 1),
    Sketcher.Constraint("Tangent", 1, 2, 2, 1),
    Sketcher.Constraint("Tangent", 2, 2, 3, 1),
    Sketcher.Constraint("Tangent", 3, 2, 0, 1),
    Sketcher.Constraint("Coincident", 4, 2, 5, 1),
    Sketcher.Constraint("Coincident", 5, 2, 6, 1),
    Sketcher.Constraint("Coincident", 6, 2, 7, 1),
    Sketcher.Constraint("Coincident", 7, 2, 4, 1),
    Sketcher.Constraint("Horizontal", 0),
    Sketcher.Constraint("Horizontal", 2),
    Sketcher.Constraint("Vertical", 4),
    Sketcher.Constraint("Horizontal", 5),
    Sketcher.Constraint("Vertical", 6),
    Sketcher.Constraint("Horizontal", 7),
    Sketcher.Constraint("Radius", 1, 5.0),
    Sketcher.Constraint("DistanceX", 0, 2, 0, 1, 16.0),
    Sketcher.Constraint("DistanceX", 5, 1, 5, 2, 8.0),
    Sketcher.Constraint("DistanceY", 4, 2, 4, 1, 4.0),
    Sketcher.Constraint("DistanceX", 4, 2, -1, 1, 3.85),
    Sketcher.Constraint("DistanceY", -1, 1, 1, 3, 8.492),
    Sketcher.Constraint("DistanceX", 1, 3, -1, 1, 13.794262),
    Sketcher.Constraint("DistanceY", 4, 2, -1, 1, 153.574135),
])
pocket2 = doc.addObject("PartDesign::Pocket", "Pocket001")
body.addObject(pocket2)
pocket2.Profile = sketch5
pocket2.Type = "ThroughAll"

doc.recompute()
